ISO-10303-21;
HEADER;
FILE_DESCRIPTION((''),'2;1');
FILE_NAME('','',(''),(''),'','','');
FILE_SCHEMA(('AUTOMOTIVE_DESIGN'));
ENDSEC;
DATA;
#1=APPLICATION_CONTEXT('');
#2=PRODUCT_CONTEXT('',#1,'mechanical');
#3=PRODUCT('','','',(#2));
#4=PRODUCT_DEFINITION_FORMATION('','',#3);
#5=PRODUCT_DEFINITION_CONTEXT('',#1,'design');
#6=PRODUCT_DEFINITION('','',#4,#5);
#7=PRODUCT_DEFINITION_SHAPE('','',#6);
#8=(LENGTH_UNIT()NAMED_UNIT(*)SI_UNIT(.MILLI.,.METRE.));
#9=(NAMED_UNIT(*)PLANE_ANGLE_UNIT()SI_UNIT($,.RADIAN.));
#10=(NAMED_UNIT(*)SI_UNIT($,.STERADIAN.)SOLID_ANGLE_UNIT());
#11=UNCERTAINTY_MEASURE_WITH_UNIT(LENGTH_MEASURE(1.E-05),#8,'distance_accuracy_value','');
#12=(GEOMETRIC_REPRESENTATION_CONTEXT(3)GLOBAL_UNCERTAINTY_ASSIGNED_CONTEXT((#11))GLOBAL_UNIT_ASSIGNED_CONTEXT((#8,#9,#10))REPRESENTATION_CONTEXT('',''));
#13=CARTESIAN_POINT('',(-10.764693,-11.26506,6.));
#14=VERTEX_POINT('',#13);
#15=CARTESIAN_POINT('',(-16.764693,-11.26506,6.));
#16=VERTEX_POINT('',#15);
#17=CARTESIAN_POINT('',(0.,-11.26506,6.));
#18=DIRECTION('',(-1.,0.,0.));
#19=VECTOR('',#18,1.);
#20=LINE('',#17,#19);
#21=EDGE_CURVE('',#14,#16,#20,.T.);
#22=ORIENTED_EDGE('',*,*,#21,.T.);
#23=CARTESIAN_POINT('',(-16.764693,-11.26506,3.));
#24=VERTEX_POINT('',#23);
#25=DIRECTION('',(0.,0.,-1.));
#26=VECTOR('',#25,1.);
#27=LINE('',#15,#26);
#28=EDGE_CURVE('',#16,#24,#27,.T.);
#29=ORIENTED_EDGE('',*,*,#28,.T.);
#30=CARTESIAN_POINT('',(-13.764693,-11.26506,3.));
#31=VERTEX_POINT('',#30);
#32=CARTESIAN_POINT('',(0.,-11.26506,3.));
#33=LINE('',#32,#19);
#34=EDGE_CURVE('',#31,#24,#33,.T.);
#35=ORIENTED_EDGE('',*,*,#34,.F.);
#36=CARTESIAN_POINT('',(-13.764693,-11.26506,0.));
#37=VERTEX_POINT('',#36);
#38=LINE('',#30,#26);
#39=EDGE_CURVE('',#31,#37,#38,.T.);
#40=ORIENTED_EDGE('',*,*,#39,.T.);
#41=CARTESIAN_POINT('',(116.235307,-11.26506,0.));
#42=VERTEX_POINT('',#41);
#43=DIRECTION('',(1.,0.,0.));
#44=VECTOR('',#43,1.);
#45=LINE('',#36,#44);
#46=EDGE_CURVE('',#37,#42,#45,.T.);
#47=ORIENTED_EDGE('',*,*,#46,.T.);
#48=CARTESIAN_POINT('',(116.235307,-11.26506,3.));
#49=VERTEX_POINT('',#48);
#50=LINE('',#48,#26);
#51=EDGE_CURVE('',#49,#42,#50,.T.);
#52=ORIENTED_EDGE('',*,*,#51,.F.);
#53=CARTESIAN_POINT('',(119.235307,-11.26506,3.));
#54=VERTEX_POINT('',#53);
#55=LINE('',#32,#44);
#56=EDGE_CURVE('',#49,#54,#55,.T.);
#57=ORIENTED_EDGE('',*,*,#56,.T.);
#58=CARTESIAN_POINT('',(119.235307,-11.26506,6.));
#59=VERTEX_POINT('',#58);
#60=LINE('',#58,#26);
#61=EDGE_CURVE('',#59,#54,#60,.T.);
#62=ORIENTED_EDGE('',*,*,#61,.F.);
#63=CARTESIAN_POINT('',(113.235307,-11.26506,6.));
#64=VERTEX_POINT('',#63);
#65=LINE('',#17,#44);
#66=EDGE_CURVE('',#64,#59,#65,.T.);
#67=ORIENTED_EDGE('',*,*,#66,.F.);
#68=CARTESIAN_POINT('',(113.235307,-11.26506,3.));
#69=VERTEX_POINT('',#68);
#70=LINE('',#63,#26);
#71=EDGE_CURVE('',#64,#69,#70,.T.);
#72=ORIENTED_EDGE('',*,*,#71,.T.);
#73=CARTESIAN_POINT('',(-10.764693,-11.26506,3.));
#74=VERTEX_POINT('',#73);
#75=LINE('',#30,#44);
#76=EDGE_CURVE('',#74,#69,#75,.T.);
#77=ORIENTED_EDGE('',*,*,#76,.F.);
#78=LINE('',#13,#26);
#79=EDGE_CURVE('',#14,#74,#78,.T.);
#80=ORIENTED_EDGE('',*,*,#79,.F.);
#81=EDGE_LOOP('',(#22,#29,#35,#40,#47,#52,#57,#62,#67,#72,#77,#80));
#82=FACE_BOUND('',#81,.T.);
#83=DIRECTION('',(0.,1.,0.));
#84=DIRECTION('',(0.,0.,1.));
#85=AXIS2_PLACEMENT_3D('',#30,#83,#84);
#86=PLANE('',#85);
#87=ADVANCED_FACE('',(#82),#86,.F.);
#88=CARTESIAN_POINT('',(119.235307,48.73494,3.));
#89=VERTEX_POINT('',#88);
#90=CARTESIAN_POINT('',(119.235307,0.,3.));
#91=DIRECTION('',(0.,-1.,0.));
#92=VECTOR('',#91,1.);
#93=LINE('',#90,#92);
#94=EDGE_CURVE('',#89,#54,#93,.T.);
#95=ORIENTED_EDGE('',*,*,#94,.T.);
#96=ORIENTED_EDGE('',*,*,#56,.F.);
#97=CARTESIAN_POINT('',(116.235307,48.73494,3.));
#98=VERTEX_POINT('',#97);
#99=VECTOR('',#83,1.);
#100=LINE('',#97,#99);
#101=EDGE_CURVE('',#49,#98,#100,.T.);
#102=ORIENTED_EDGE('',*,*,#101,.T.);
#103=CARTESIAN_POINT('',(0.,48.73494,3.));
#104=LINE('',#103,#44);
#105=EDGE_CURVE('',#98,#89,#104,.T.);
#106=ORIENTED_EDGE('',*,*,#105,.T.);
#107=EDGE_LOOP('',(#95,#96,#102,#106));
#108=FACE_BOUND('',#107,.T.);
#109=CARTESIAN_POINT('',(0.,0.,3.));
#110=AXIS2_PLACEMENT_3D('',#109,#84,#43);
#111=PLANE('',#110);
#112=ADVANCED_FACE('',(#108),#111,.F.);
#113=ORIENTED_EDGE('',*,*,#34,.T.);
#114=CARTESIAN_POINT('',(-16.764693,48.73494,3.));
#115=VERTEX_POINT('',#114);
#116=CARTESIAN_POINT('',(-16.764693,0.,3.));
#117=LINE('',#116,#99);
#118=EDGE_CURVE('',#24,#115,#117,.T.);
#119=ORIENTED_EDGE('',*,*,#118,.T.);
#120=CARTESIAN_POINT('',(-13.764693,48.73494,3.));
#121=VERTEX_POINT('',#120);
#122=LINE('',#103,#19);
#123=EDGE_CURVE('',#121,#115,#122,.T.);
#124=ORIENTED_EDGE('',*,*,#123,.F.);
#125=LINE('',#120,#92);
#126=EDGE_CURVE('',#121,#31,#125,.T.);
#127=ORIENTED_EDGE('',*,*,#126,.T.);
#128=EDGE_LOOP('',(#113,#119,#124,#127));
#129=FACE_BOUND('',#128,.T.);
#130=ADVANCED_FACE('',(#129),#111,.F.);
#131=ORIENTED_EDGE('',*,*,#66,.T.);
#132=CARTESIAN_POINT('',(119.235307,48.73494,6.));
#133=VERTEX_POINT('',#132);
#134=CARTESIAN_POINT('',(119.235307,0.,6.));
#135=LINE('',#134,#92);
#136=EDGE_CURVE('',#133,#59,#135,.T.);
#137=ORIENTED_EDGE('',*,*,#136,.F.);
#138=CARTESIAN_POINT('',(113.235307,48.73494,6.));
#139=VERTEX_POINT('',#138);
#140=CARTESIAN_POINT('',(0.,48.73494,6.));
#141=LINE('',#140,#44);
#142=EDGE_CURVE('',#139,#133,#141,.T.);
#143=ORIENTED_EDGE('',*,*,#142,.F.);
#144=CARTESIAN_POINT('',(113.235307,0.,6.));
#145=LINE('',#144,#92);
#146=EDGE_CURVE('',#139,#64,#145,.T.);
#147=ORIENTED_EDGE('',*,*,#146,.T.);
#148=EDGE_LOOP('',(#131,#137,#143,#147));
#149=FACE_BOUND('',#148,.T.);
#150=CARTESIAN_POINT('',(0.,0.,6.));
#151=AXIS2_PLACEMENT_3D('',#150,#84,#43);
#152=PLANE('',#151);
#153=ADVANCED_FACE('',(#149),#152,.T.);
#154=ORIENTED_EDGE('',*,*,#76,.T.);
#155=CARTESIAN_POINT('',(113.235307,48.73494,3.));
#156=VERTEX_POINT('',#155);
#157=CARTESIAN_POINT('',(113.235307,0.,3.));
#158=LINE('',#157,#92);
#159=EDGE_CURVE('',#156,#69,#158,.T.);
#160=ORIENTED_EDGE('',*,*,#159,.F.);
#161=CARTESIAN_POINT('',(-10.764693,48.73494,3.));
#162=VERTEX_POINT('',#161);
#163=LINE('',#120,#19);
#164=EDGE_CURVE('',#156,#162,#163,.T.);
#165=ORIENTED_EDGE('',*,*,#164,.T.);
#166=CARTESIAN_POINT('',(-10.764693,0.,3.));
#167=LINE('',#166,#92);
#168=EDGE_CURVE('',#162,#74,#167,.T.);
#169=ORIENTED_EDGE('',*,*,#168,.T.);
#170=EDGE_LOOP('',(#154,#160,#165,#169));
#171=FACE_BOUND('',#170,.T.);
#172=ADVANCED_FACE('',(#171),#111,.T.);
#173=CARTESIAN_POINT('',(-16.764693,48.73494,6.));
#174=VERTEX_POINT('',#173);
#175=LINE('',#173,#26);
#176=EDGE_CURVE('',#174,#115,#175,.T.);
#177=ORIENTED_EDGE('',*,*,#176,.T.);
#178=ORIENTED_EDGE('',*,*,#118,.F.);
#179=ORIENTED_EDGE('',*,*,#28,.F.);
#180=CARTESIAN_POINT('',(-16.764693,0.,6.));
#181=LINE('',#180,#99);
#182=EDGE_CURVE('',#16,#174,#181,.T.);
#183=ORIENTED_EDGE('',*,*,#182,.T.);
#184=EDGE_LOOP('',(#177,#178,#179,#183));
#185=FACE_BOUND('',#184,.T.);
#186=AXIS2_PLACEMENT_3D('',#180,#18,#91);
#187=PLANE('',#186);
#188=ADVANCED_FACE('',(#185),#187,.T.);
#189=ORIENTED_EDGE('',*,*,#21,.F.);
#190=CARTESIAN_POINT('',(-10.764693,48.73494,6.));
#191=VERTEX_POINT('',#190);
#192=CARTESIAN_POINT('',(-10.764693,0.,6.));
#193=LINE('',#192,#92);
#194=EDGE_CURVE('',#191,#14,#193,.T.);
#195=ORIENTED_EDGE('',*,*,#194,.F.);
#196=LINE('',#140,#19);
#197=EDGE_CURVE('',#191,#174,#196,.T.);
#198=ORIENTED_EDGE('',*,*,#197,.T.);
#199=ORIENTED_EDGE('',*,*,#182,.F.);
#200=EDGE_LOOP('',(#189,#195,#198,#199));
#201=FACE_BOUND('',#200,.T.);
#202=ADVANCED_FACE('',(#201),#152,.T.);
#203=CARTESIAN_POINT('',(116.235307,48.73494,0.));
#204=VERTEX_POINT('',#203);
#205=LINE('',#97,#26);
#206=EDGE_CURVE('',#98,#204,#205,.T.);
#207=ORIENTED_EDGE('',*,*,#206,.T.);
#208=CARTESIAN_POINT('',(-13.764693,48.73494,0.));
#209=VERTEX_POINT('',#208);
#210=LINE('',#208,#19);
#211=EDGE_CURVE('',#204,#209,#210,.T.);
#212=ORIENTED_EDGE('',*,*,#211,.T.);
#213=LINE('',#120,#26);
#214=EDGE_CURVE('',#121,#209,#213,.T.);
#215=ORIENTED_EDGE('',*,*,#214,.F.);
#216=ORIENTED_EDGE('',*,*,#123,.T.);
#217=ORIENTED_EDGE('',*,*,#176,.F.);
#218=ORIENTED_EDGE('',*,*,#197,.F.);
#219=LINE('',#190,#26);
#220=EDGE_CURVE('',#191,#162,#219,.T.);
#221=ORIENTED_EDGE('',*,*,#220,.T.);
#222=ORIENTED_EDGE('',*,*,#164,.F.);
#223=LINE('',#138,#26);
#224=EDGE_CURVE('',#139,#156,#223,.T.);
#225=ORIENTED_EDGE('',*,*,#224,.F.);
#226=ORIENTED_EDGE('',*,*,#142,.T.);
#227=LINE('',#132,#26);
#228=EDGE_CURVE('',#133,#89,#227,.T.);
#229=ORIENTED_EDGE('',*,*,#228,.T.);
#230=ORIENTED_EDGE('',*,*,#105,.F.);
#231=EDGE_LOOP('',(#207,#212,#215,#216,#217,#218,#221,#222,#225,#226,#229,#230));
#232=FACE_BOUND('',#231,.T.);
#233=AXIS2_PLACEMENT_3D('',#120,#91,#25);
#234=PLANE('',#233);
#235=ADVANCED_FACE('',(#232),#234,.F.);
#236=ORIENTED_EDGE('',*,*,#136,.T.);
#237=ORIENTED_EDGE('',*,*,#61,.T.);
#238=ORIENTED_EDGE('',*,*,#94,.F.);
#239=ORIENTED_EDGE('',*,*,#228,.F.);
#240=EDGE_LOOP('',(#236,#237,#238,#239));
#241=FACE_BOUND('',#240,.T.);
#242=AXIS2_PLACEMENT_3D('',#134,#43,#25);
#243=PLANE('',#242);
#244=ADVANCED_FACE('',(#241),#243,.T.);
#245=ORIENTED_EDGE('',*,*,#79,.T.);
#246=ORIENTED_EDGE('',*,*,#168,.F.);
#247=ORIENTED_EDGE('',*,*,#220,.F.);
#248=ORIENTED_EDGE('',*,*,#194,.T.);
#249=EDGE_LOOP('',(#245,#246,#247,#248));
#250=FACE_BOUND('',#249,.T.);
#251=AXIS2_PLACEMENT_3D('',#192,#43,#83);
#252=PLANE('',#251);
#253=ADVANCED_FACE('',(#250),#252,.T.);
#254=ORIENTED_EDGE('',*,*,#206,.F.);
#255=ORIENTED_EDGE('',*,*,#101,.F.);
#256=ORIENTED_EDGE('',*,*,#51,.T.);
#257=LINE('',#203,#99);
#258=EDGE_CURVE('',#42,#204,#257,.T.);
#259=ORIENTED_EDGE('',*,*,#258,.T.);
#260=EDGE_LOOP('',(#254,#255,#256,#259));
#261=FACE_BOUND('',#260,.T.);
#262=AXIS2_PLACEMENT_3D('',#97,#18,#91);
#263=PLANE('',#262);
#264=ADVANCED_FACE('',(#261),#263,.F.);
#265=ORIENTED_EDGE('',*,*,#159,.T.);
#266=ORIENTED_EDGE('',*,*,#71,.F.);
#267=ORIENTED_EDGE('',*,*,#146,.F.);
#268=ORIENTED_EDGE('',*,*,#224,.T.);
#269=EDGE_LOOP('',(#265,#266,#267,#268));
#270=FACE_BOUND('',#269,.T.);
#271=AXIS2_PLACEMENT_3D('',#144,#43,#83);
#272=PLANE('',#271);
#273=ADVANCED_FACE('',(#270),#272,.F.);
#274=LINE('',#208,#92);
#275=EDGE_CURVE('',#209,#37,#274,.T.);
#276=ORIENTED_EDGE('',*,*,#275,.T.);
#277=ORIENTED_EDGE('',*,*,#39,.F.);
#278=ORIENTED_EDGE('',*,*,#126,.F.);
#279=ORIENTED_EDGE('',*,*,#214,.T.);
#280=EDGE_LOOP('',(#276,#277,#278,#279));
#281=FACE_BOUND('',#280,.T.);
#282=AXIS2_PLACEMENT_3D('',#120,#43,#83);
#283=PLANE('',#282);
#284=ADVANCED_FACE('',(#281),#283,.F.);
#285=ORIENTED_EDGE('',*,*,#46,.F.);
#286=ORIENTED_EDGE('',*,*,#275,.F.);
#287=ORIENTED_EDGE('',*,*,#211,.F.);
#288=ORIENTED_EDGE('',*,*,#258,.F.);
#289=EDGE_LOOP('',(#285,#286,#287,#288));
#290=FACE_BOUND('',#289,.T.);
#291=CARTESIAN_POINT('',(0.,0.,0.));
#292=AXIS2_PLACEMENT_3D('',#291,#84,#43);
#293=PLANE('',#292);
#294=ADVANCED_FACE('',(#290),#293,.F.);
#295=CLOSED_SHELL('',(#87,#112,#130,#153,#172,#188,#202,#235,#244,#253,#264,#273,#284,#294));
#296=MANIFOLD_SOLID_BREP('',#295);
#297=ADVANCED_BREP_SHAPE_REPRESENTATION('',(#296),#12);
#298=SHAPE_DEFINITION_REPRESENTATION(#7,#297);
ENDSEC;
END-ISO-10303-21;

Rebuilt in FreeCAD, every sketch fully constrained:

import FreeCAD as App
import Part
import Sketcher

V = App.Vector


def add_polygon(sketch, points):
    """Adds a closed chain of lines whose ends are joined by coincident constraints."""
    first, n = sketch.GeometryCount, len(points)
    for a, b in zip(points, points[1:] + points[:1]):
        sketch.addGeometry(Part.LineSegment(App.Vector(*a, 0), App.Vector(*b, 0)), False)
    for i in range(n):
        sketch.addConstraint(Sketcher.Constraint("Coincident", first + i, 2, first + (i + 1) % n, 1))

doc = App.newDocument("Part")
body = doc.addObject("PartDesign::Body", "Body")

# Sketch on XY plane
sketch1 = body.newObject("Sketcher::SketchObject", "Sketch")
sketch1.AttachmentSupport = (doc.getObject("XY_Plane"), [""])
sketch1.MapMode = "FlatFace"
add_polygon(sketch1, [(-13.764693, 48.73494), (-13.764693, -11.26506), (116.235307, -11.26506), (116.235307, 48.73494)])  # lines 0-3
sketch1.addConstraint([
    Sketcher.Constraint("Vertical", 0),
    Sketcher.Constraint("Horizontal", 1),
    Sketcher.Constraint("Vertical", 2),
    Sketcher.Constraint("Horizontal", 3),
    Sketcher.Constraint("DistanceX", 1, 1, 1, 2, 130.0),
    Sketcher.Constraint("DistanceY", 0, 2, 0, 1, 60.0),
    Sketcher.Constraint("DistanceY", 0, 2, -1, 1, 11.26506),
    Sketcher.Constraint("DistanceX", 0, 2, -1, 1, 13.764693),
])
pad1 = body.newObject("PartDesign::Pad", "Pad")
pad1.Profile = sketch1
pad1.Length = 3

# Sketch on XY plane
sketch2 = body.newObject("Sketcher::SketchObject", "Sketch001")
sketch2.AttachmentSupport = (doc.getObject("XY_Plane"), [""])
sketch2.MapMode = "FlatFace"
sketch2.AttachmentOffset = App.Placement(V(0, 0, 3), App.Rotation())
add_polygon(sketch2, [(-16.764693, 48.73494), (-16.764693, -11.26506), (-10.764693, -11.26506), (-10.764693, 48.73494)])  # lines 0-3
add_polygon(sketch2, [(119.235307, -11.26506), (119.235307, 48.73494), (113.235307, 48.73494), (113.235307, -11.26506)])  # lines 4-7
sketch2.addConstraint([
    Sketcher.Constraint("Vertical", 0),
    Sketcher.Constraint("Horizontal", 1),
    Sketcher.Constraint("Vertical", 2),
    Sketcher.Constraint("Horizontal", 3),
    Sketcher.Constraint("Vertical", 4),
    Sketcher.Constraint("Horizontal", 5),
    Sketcher.Constraint("Vertical", 6),
    Sketcher.Constraint("Horizontal", 7),
    Sketcher.Constraint("Horizontal", 3, 2, 4, 2),
    Sketcher.Constraint("Horizontal", 1, 2, 6, 2),
    Sketcher.Constraint("Equal", 3, 5),
    Sketcher.Constraint("DistanceX", 1, 1, 1, 2, 6.0),
    Sketcher.Constraint("DistanceY", 0, 2, 0, 1, 60.0),
    Sketcher.Constraint("DistanceX", 2, 2, 4, 2, 130.0),
    Sketcher.Constraint("DistanceY", 0, 2, -1, 1, 11.26506),
    Sketcher.Constraint("DistanceX", 0, 2, -1, 1, 16.764693),
])
pad2 = body.newObject("PartDesign::Pad", "Pad001")
pad2.Profile = sketch2
pad2.Length = 3

doc.recompute()
